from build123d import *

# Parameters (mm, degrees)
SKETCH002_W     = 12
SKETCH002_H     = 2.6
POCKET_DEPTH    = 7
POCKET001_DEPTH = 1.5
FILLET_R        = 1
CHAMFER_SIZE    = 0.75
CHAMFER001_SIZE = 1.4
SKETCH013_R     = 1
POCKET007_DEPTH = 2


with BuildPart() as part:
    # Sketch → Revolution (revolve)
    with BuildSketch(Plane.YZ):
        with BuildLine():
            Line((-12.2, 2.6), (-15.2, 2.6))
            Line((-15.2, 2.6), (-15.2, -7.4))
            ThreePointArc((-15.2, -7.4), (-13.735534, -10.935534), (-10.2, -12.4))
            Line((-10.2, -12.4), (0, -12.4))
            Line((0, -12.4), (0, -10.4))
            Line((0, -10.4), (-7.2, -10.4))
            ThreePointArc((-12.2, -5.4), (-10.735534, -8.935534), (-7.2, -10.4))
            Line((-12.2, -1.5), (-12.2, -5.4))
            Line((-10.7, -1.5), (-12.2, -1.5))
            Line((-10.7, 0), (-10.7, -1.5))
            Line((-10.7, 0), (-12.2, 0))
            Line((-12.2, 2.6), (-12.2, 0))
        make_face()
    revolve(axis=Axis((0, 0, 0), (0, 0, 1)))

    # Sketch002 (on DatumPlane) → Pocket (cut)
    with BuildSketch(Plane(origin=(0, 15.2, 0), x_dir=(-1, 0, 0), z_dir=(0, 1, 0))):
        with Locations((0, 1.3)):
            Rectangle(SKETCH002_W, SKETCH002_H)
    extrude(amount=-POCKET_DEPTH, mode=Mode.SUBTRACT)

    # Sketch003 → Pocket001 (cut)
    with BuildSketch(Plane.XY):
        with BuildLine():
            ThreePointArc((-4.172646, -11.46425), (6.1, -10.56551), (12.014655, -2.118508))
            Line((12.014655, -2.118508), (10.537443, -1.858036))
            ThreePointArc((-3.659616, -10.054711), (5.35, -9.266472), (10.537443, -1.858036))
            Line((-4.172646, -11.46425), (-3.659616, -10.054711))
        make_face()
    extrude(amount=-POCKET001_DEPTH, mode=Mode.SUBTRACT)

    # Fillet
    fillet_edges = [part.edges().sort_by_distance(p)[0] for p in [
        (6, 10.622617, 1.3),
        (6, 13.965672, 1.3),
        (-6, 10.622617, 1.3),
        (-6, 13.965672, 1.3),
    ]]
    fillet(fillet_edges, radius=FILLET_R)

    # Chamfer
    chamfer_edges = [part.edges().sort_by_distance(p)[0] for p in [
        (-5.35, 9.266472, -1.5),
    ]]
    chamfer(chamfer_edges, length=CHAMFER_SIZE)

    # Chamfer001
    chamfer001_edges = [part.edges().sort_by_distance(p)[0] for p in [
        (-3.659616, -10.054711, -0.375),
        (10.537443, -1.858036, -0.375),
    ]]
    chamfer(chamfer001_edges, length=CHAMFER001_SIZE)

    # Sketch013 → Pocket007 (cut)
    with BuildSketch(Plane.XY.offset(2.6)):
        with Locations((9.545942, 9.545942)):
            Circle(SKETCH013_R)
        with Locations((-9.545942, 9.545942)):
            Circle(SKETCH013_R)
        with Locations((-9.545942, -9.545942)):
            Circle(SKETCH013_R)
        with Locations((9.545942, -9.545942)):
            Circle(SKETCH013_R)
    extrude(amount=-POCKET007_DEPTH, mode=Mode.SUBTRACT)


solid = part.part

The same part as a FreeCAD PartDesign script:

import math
import FreeCAD as App
import Part
import Sketcher
Q = App.Units.Quantity


def edges_at(feature, points):
    """Names of the edges that pass closest to the given points."""
    edges = feature.Shape.Edges
    near = lambda p: min(range(len(edges)), key=lambda i: edges[i].distToShape(Part.Vertex(*p))[0])
    return sorted({f"Edge{near(p) + 1}" for p in points})


def add_polygon(sketch, points):
    """Adds a closed chain of lines whose ends are joined by coincident constraints."""
    first, n = sketch.GeometryCount, len(points)
    for a, b in zip(points, points[1:] + points[:1]):
        sketch.addGeometry(Part.LineSegment(App.Vector(*a, 0), App.Vector(*b, 0)), False)
    for i in range(n):
        sketch.addConstraint(Sketcher.Constraint("Coincident", first + i, 2, first + (i + 1) % n, 1))

doc = App.newDocument("Part")
body = doc.addObject("PartDesign::Body", "Body")

# Sketch on YZ plane
sketch1 = body.newObject("Sketcher::SketchObject", "Sketch")
sketch1.AttachmentSupport = (doc.getObject("YZ_Plane"), [""])
sketch1.MapMode = "FlatFace"
sketch1.addGeometry(Part.LineSegment(App.Vector(-12.2, 2.6, 0), App.Vector(-15.2, 2.6, 0)), False)
sketch1.addGeometry(Part.LineSegment(App.Vector(-15.2, 2.6, 0), App.Vector(-15.2, -7.4, 0)), False)
sketch1.addGeometry(Part.ArcOfCircle(Part.Circle(App.Vector(-10.2, -7.4, 0), App.Vector(0, 0, 1), 5), math.radians(180), math.radians(270)), False)
sketch1.addGeometry(Part.LineSegment(App.Vector(-10.2, -12.4, 0), App.Vector(0, -12.4, 0)), False)
sketch1.addGeometry(Part.LineSegment(App.Vector(0, -12.4, 0), App.Vector(0, -10.4, 0)), False)
sketch1.addGeometry(Part.LineSegment(App.Vector(0, -10.4, 0), App.Vector(-7.2, -10.4, 0)), False)
sketch1.addGeometry(Part.ArcOfCircle(Part.Circle(App.Vector(-7.2, -5.4, 0), App.Vector(0, 0, 1), 5), math.radians(180), math.radians(270)), False)
sketch1.addGeometry(Part.LineSegment(App.Vector(-12.2, -5.4, 0), App.Vector(-12.2, -1.5, 0)), False)
sketch1.addGeometry(Part.LineSegment(App.Vector(-12.2, -1.5, 0), App.Vector(-10.7, -1.5, 0)), False)
sketch1.addGeometry(Part.LineSegment(App.Vector(-10.7, -1.5, 0), App.Vector(-10.7, 0, 0)), False)
sketch1.addGeometry(Part.LineSegment(App.Vector(-10.7, 0, 0), App.Vector(-12.2, 0, 0)), False)
sketch1.addGeometry(Part.LineSegment(App.Vector(-12.2, 0, 0), App.Vector(-12.2, 2.6, 0)), False)
sketch1.addConstraint(Sketcher.Constraint("Coincident", 0, 2, 1, 1))
sketch1.addConstraint(Sketcher.Constraint("Tangent", 1, 2, 2, 1))
sketch1.addConstraint(Sketcher.Constraint("Tangent", 2, 2, 3, 1))
sketch1.addConstraint(Sketcher.Constraint("Coincident", 3, 2, 4, 1))
sketch1.addConstraint(Sketcher.Constraint("Coincident", 4, 2, 5, 1))
sketch1.addConstraint(Sketcher.Constraint("Tangent", 5, 2, 6, 2))
sketch1.addConstraint(Sketcher.Constraint("Tangent", 6, 1, 7, 1))
sketch1.addConstraint(Sketcher.Constraint("Coincident", 7, 2, 8, 1))
sketch1.addConstraint(Sketcher.Constraint("Coincident", 8, 2, 9, 1))
sketch1.addConstraint(Sketcher.Constraint("Coincident", 9, 2, 10, 1))
sketch1.addConstraint(Sketcher.Constraint("Coincident", 10, 2, 11, 1))
sketch1.addConstraint(Sketcher.Constraint("Coincident", 11, 2, 0, 1))
sketch1.addConstraint(Sketcher.Constraint("Horizontal", 0))
sketch1.addConstraint(Sketcher.Constraint("Vertical", 1))
sketch1.addConstraint(Sketcher.Constraint("Horizontal", 3))
sketch1.addConstraint(Sketcher.Constraint("Vertical", 4))
sketch1.addConstraint(Sketcher.Constraint("Horizontal", 5))
sketch1.addConstraint(Sketcher.Constraint("Vertical", 7))
sketch1.addConstraint(Sketcher.Constraint("Horizontal", 8))
sketch1.addConstraint(Sketcher.Constraint("Vertical", 9))
sketch1.addConstraint(Sketcher.Constraint("Horizontal", 10))
sketch1.addConstraint(Sketcher.Constraint("Vertical", 11))
sketch1.addConstraint(Sketcher.Constraint("Equal", 2, 6))
sketch1.addConstraint(Sketcher.Constraint("PointOnObject", 3, 2, -2))
sketch1.addConstraint(Sketcher.Constraint("PointOnObject", 9, 2, -1))
sketch1.addConstraint(Sketcher.Constraint("Vertical", 7, 2, 10, 2))
sketch1.addConstraint(Sketcher.Constraint("Equal", 10, 9))
sketch1.addConstraint(Sketcher.Constraint("Radius", 2, 5.0))
sketch1.addConstraint(Sketcher.Constraint("DistanceX", 0, 2, 0, 1, 3.0))
sketch1.addConstraint(Sketcher.Constraint("DistanceY", 1, 2, 1, 1, 10.0))
sketch1.addConstraint(Sketcher.Constraint("DistanceY", 4, 1, 4, 2, 2.0))
sketch1.addConstraint(Sketcher.Constraint("DistanceX", 3, 1, 3, 2, 10.2))
sketch1.addConstraint(Sketcher.Constraint("DistanceX", 8, 1, 8, 2, 1.5))
sketch1.addConstraint(Sketcher.Constraint("DistanceY", 7, 1, 7, 2, 3.9))
revolution = body.newObject("PartDesign::Revolution", "Revolution")
revolution.Profile = sketch1
revolution.ReferenceAxis = (sketch1, ["V_Axis"])
revolution.Angle = 360

# Sketch on XZ plane
sketch2 = body.newObject("Sketcher::SketchObject", "Sketch001")
sketch2.AttachmentSupport = (doc.getObject("XZ_Plane"), [""])
sketch2.MapMode = "FlatFace"
sketch2.AttachmentOffset = App.Placement(App.Vector(0, 0, -15.2), App.Rotation())
add_polygon(sketch2, [(6, 2.6), (6, 0), (-6, 0), (-6, 2.6)])  # lines 0-3
sketch2.addConstraint(Sketcher.Constraint("Vertical", 0))
sketch2.addConstraint(Sketcher.Constraint("Horizontal", 1))
sketch2.addConstraint(Sketcher.Constraint("Vertical", 2))
sketch2.addConstraint(Sketcher.Constraint("Horizontal", 3))
sketch2.addConstraint(Sketcher.Constraint("Symmetric", 0, 2, 1, 2, -1, 1))
sketch2.addConstraint(Sketcher.Constraint("DistanceX", 1, 2, 1, 1, 12.0))
sketch2.addConstraint(Sketcher.Constraint("DistanceY", 0, 2, 0, 1, 2.6))
pocket1 = body.newObject("PartDesign::Pocket", "Pocket")
pocket1.Profile = sketch2
pocket1.Length = 7
pocket1.Reversed = True

# Sketch on XY plane
sketch3 = body.newObject("Sketcher::SketchObject", "Sketch002")
sketch3.AttachmentSupport = (doc.getObject("XY_Plane"), [""])
sketch3.MapMode = "FlatFace"
sketch3.addGeometry(Part.ArcOfCircle(Part.Circle(App.Vector(0, 0, 0), App.Vector(0, 0, 1), 12.2), math.radians(-110), math.radians(-10)), False)
sketch3.addGeometry(Part.LineSegment(App.Vector(12, -2.1, 0), App.Vector(10.5, -1.9, 0)), False)
sketch3.addGeometry(Part.ArcOfCircle(Part.Circle(App.Vector(0, 0, 0), App.Vector(0, 0, 1), 10.7), math.radians(-110), math.radians(-10)), False)
sketch3.addGeometry(Part.LineSegment(App.Vector(-3.7, -10.1, 0), App.Vector(-4.2, -11.5, 0)), False)
sketch3.addConstraint(Sketcher.Constraint("Coincident", 0, 2, 1, 1))
sketch3.addConstraint(Sketcher.Constraint("Coincident", 1, 2, 2, 2))
sketch3.addConstraint(Sketcher.Constraint("Coincident", 2, 1, 3, 1))
sketch3.addConstraint(Sketcher.Constraint("Coincident", 3, 2, 0, 1))
sketch3.addConstraint(Sketcher.Constraint("Coincident", 0, 3, -1, 1))
sketch3.addConstraint(Sketcher.Constraint("Coincident", 2, 3, -1, 1))
sketch3.addConstraint(Sketcher.Constraint("Radius", 0, 12.200001))
sketch3.addConstraint(Sketcher.Constraint("Radius", 2, 10.7))
sketch3.addConstraint(Sketcher.Constraint("Angle", 1, Q("170.000012 deg")))
sketch3.addConstraint(Sketcher.Constraint("Angle", 3, Q("-109.999991 deg")))
sketch3.addConstraint(Sketcher.Constraint("DistanceX", 3, 2, 0, 2, 16.187301))
sketch3.addConstraint(Sketcher.Constraint("DistanceY", 2, 1, -1, 1, 10.054711))
pocket2 = body.newObject("PartDesign::Pocket", "Pocket001")
pocket2.Profile = sketch3
pocket2.Length = 1.5
doc.recompute()

fillet = body.newObject("PartDesign::Fillet", "Fillet")
fillet.Base = (pocket2, edges_at(pocket2, [
    (6, 10.623, 1.3),
    (6, 13.966, 1.3),
    (-6, 10.623, 1.3),
    (-6, 13.966, 1.3),
]))
fillet.Radius = 1
doc.recompute()

chamfer = body.newObject("PartDesign::Chamfer", "Chamfer")
chamfer.Base = (fillet, edges_at(fillet, [(-5.35, 9.266, -1.5)]))
chamfer.Size = 0.75
doc.recompute()

chamfer2 = body.newObject("PartDesign::Chamfer", "Chamfer001")
chamfer2.Base = (chamfer, edges_at(chamfer, [(-3.66, -10.055, -0.375), (10.537, -1.858, -0.375)]))
chamfer2.Size = 1.4

# Sketch on XY plane
sketch4 = body.newObject("Sketcher::SketchObject", "Sketch003")
sketch4.AttachmentSupport = (doc.getObject("XY_Plane"), [""])
sketch4.MapMode = "FlatFace"
sketch4.AttachmentOffset = App.Placement(App.Vector(0, 0, 2.6), App.Rotation())
sketch4.addGeometry(Part.Circle(App.Vector(9.5, 9.5, 0), App.Vector(0, 0, 1), 1), False)
sketch4.addGeometry(Part.Circle(App.Vector(-9.5, 9.5, 0), App.Vector(0, 0, 1), 1), False)
sketch4.addGeometry(Part.Circle(App.Vector(-9.5, -9.5, 0), App.Vector(0, 0, 1), 1), False)
sketch4.addGeometry(Part.Circle(App.Vector(9.5, -9.5, 0), App.Vector(0, 0, 1), 1), False)
sketch4.addConstraint(Sketcher.Constraint("Equal", 0, 1))
sketch4.addConstraint(Sketcher.Constraint("Equal", 1, 2))
sketch4.addConstraint(Sketcher.Constraint("Equal", 2, 3))
sketch4.addConstraint(Sketcher.Constraint("Symmetric", 0, 3, 2, 3, -1, 1))
sketch4.addConstraint(Sketcher.Constraint("Symmetric", 1, 3, 3, 3, -1, 1))
sketch4.addConstraint(Sketcher.Constraint("Symmetric", 0, 3, 1, 3, -2))
sketch4.addConstraint(Sketcher.Constraint("Diameter", 0, 2.0))
sketch4.addConstraint(Sketcher.Constraint("DistanceX", -1, 1, 0, 3, 9.545942))
sketch4.addConstraint(Sketcher.Constraint("DistanceY", -1, 1, 0, 3, 9.545942))
pocket3 = body.newObject("PartDesign::Pocket", "Pocket002")
pocket3.Profile = sketch4
pocket3.Length = 2

doc.recompute()
